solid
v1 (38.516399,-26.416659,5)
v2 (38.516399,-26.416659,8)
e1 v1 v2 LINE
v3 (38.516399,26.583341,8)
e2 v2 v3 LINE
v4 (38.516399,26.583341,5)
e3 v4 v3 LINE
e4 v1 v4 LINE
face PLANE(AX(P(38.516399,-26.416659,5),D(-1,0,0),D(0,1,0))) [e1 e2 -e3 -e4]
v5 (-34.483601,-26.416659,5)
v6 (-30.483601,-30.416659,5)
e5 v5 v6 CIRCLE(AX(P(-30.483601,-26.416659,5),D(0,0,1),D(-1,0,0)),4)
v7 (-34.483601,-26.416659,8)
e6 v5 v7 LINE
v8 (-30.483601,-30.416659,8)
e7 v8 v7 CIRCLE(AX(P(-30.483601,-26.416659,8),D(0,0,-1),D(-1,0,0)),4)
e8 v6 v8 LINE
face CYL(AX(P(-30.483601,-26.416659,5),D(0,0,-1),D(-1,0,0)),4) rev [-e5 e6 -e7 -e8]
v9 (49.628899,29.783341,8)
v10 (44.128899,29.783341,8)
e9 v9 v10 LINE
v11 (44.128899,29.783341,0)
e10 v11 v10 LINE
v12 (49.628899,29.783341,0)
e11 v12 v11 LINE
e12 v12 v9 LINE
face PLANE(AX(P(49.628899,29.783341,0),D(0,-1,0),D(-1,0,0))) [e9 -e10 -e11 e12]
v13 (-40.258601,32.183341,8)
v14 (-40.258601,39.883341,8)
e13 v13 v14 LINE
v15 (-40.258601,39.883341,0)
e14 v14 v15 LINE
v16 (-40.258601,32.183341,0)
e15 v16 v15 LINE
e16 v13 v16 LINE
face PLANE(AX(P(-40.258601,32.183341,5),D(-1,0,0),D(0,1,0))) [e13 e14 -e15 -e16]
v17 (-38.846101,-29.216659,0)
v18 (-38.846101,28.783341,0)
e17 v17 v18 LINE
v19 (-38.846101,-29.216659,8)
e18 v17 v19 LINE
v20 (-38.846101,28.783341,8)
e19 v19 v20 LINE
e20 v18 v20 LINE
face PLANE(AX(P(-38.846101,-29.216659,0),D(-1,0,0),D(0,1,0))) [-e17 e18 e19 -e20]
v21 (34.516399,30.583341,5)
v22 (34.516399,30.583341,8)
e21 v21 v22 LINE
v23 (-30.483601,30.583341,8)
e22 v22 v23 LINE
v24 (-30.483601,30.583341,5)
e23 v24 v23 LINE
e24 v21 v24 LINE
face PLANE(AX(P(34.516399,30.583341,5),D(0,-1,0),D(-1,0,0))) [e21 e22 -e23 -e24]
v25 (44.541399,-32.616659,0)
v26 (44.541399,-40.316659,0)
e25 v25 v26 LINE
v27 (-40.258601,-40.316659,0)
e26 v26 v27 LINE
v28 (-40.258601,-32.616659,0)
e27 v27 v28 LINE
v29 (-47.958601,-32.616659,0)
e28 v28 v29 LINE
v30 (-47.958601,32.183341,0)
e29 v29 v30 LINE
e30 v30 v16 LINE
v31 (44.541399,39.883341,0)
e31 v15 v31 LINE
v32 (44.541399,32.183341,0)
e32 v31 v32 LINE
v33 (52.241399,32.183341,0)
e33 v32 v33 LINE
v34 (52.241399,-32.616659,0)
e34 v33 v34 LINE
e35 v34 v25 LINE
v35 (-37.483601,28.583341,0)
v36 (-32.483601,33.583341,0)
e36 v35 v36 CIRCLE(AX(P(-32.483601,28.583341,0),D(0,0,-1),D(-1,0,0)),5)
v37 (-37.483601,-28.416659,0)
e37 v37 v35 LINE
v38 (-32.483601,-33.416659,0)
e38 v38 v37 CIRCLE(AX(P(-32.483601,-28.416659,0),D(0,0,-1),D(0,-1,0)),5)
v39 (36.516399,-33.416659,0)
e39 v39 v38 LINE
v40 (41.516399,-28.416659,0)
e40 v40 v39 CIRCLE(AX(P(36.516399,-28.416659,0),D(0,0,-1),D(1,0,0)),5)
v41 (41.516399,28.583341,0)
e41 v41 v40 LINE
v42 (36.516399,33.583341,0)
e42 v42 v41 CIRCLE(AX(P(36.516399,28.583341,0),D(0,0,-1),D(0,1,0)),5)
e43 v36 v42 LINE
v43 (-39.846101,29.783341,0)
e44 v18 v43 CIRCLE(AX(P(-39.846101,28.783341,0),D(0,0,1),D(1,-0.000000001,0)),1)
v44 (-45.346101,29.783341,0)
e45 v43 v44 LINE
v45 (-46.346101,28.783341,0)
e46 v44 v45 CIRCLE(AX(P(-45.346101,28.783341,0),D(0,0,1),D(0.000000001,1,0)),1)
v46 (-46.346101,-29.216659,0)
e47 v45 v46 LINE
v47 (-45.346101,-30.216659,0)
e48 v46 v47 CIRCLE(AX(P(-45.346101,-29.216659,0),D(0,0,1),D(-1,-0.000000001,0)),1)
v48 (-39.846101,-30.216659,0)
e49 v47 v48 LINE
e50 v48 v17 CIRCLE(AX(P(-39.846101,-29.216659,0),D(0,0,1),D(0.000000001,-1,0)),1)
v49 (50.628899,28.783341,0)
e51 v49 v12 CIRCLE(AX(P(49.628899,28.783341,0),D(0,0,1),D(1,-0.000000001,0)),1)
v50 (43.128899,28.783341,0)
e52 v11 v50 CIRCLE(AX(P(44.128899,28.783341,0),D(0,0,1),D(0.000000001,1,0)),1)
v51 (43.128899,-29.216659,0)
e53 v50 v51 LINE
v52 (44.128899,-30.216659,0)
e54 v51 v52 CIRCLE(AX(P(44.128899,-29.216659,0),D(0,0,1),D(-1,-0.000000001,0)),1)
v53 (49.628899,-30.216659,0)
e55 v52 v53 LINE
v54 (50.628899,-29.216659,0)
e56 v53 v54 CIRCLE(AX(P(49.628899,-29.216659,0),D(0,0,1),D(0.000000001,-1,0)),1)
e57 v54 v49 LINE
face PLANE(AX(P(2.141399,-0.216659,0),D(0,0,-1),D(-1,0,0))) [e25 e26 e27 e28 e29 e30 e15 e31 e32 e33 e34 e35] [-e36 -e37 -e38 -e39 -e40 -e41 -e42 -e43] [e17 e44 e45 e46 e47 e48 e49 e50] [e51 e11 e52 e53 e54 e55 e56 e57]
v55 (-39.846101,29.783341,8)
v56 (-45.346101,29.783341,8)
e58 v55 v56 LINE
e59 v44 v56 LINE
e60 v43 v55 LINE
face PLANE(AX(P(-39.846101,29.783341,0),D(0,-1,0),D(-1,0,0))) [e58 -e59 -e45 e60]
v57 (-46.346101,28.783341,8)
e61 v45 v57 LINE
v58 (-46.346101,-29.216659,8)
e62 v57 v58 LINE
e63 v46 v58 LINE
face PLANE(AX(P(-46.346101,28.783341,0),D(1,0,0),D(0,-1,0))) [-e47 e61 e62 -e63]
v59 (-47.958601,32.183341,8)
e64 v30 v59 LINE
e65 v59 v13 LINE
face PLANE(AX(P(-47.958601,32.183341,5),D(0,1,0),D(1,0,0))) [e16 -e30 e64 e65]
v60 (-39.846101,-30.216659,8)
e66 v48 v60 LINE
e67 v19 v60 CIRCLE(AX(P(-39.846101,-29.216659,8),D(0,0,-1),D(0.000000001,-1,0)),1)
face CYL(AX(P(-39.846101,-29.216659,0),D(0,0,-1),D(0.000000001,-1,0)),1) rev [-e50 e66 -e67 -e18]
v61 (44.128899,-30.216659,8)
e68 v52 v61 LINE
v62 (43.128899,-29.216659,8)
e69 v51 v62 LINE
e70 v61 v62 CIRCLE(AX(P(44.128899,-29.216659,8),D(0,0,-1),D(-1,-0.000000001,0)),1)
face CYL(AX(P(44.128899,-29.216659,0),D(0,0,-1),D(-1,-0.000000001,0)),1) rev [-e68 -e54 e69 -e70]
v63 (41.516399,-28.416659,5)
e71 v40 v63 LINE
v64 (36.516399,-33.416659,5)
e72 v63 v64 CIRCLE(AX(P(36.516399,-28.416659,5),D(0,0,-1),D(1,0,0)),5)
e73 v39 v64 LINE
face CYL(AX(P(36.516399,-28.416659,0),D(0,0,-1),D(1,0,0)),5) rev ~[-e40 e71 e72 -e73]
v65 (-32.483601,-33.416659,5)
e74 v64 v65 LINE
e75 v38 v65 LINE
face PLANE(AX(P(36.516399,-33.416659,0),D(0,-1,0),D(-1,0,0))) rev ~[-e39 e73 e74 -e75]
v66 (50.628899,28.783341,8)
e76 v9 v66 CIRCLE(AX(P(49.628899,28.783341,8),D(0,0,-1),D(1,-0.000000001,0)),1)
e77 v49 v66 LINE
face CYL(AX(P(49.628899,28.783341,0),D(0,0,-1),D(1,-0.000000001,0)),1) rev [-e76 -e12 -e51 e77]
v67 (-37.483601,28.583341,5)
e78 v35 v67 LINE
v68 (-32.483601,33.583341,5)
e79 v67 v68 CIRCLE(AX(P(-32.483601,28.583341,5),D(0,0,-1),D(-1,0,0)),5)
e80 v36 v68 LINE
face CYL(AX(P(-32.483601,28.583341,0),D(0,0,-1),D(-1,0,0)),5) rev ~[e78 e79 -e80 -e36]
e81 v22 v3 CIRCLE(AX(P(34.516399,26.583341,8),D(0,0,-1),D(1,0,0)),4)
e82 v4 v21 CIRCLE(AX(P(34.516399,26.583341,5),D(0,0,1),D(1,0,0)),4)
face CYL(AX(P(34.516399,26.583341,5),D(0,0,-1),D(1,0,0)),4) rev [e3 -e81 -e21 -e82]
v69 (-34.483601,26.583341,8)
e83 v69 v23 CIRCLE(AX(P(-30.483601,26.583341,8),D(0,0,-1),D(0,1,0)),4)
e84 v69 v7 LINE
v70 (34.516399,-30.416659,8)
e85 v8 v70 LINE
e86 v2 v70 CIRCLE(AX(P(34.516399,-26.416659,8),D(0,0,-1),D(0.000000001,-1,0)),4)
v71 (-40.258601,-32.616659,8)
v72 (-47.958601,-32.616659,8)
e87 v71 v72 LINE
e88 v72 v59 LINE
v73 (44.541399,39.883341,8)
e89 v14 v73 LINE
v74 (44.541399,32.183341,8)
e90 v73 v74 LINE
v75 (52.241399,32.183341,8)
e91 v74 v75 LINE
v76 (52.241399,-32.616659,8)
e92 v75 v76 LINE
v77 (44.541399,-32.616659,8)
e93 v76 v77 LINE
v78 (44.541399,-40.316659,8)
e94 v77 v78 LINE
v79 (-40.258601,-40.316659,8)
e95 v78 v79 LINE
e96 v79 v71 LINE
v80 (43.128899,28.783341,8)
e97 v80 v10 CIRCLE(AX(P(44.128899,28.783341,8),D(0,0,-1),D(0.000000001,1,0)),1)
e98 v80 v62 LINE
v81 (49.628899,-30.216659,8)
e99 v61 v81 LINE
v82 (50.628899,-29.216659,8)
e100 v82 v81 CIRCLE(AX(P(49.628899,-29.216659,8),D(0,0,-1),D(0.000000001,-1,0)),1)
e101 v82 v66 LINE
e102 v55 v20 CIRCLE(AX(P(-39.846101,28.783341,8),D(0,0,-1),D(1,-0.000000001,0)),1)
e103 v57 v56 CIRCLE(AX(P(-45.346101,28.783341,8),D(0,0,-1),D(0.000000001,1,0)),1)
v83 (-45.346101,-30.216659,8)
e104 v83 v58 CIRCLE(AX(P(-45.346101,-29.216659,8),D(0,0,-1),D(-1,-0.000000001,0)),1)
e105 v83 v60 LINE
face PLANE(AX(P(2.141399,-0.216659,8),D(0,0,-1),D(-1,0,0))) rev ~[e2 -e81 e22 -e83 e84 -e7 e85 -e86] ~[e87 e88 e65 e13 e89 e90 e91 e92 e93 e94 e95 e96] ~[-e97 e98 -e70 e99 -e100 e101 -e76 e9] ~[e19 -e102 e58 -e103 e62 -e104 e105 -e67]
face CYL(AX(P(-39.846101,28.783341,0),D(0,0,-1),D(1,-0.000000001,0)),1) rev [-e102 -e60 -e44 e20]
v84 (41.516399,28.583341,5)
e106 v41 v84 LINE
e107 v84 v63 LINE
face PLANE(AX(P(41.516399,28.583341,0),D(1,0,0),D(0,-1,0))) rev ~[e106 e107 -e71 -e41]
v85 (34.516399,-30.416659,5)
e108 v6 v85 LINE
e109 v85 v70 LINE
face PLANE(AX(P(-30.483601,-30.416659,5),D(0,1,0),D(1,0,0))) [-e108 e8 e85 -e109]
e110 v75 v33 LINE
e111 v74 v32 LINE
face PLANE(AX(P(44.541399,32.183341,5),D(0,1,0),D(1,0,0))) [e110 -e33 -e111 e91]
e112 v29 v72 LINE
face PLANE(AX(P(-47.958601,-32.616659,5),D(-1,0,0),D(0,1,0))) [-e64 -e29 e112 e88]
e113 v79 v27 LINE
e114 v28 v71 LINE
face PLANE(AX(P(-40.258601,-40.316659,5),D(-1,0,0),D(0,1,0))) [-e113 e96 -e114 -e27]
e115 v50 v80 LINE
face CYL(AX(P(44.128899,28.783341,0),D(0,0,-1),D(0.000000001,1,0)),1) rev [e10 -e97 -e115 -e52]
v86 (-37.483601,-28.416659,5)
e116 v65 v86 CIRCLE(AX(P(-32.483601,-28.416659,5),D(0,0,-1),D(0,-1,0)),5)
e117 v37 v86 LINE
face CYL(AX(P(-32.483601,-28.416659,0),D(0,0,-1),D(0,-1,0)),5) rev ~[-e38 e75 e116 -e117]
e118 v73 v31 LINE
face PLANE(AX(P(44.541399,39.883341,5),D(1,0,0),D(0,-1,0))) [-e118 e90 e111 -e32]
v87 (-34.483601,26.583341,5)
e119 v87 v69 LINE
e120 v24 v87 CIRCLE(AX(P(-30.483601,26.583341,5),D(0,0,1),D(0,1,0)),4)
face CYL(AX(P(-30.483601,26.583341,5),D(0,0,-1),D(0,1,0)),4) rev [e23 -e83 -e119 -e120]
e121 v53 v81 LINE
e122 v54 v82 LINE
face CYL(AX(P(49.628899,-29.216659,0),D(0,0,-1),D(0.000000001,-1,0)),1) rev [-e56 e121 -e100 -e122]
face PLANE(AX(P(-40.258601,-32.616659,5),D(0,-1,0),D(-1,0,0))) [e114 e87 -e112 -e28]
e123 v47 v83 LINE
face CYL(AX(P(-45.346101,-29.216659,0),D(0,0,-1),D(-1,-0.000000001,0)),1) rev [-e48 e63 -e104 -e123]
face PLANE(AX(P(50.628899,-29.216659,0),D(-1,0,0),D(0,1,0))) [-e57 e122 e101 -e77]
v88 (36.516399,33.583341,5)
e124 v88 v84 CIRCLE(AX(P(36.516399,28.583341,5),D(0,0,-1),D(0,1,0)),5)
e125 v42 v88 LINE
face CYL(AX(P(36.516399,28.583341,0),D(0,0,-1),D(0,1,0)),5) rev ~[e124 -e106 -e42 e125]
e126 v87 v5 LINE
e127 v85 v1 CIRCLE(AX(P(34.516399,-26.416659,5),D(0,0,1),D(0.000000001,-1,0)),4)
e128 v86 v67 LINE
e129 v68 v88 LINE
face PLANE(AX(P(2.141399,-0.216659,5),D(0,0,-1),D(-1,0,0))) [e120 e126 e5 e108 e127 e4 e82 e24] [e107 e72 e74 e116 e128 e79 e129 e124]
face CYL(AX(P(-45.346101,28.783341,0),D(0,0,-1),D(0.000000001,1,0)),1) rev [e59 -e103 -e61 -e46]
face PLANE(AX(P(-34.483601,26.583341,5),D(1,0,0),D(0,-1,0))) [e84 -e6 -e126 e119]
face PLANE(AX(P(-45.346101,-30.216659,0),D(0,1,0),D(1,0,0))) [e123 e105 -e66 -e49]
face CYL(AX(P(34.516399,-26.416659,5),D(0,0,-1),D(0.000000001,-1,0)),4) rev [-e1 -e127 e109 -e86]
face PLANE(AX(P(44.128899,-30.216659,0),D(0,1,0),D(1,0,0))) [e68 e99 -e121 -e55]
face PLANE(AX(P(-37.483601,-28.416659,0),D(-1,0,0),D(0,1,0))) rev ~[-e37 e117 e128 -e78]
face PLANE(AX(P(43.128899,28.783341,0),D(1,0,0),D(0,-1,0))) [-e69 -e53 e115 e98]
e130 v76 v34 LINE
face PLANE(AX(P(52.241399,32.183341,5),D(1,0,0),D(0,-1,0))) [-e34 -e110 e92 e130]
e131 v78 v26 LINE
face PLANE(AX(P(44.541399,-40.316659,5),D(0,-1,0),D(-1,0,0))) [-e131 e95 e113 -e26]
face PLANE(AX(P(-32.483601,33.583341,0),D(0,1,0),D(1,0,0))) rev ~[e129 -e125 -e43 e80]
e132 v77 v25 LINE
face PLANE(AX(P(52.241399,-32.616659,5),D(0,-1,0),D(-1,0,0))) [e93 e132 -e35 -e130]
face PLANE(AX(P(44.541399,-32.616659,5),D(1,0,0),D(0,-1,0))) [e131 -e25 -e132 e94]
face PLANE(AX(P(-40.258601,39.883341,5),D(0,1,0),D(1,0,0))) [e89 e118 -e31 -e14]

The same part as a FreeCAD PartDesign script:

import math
import FreeCAD as App
import Part
import Sketcher
from FreeCAD import Vector
Q = App.Units.Quantity


def add_polygon(sketch, points):
    """Adds a closed chain of lines whose ends are joined by coincident constraints."""
    first, n = sketch.GeometryCount, len(points)
    for a, b in zip(points, points[1:] + points[:1]):
        sketch.addGeometry(Part.LineSegment(App.Vector(*a, 0), App.Vector(*b, 0)), False)
    for i in range(n):
        sketch.addConstraint(Sketcher.Constraint("Coincident", first + i, 2, first + (i + 1) % n, 1))

doc = App.newDocument("Part")
body = doc.addObject("PartDesign::Body", "Body")

# Sketch on XY plane
sketch1 = body.newObject("Sketcher::SketchObject", "Sketch")
sketch1.AttachmentSupport = (doc.getObject("XY_Plane"), [""])
sketch1.MapMode = "FlatFace"
add_polygon(sketch1, [(45, 40), (-40, 40), (-40, 32), (-48, 32), (-48, -33), (-40, -33), (-40, -40), (45, -40), (45, -33), (52, -33), (52, 32), (45, 32)])  # lines 0-11
sketch1.addGeometry(Part.LineSegment(Vector(-32, 34, 0), Vector(37, 34, 0)), False)  # 12
sketch1.addGeometry(Part.ArcOfCircle(Part.Circle(Vector(37, 29, 0), Vector(0, 0, 1), 5), math.radians(0), math.radians(90)), False)  # 13
sketch1.addGeometry(Part.LineSegment(Vector(42, 29, 0), Vector(42, -28, 0)), False)  # 14
sketch1.addGeometry(Part.ArcOfCircle(Part.Circle(Vector(37, -28, 0), Vector(0, 0, 1), 5), math.radians(-90), math.radians(0)), False)  # 15
sketch1.addGeometry(Part.LineSegment(Vector(37, -33, 0), Vector(-32, -33, 0)), False)  # 16
sketch1.addGeometry(Part.ArcOfCircle(Part.Circle(Vector(-32, -28, 0), Vector(0, 0, 1), 5), math.radians(-180), math.radians(-90)), False)  # 17
sketch1.addGeometry(Part.LineSegment(Vector(-37, -28, 0), Vector(-37, 29, 0)), False)  # 18
sketch1.addGeometry(Part.ArcOfCircle(Part.Circle(Vector(-32, 29, 0), Vector(0, 0, 1), 5), math.radians(90), math.radians(180)), False)  # 19
sketch1.addConstraint([
    Sketcher.Constraint("Tangent", 12, 2, 13, 2),
    Sketcher.Constraint("Tangent", 13, 1, 14, 1),
    Sketcher.Constraint("Tangent", 14, 2, 15, 2),
    Sketcher.Constraint("Tangent", 15, 1, 16, 1),
    Sketcher.Constraint("Tangent", 16, 2, 17, 2),
    Sketcher.Constraint("Tangent", 17, 1, 18, 1),
    Sketcher.Constraint("Tangent", 18, 2, 19, 2),
    Sketcher.Constraint("Tangent", 19, 1, 12, 1),
    Sketcher.Constraint("Horizontal", 0),
    Sketcher.Constraint("Vertical", 1),
    Sketcher.Constraint("Horizontal", 2),
    Sketcher.Constraint("Vertical", 3),
    Sketcher.Constraint("Horizontal", 4),
    Sketcher.Constraint("Vertical", 5),
    Sketcher.Constraint("Horizontal", 6),
    Sketcher.Constraint("Vertical", 7),
    Sketcher.Constraint("Horizontal", 8),
    Sketcher.Constraint("Vertical", 9),
    Sketcher.Constraint("Horizontal", 10),
    Sketcher.Constraint("Vertical", 11),
    Sketcher.Constraint("Horizontal", 12),
    Sketcher.Constraint("Vertical", 14),
    Sketcher.Constraint("Horizontal", 16),
    Sketcher.Constraint("Vertical", 18),
    Sketcher.Constraint("Equal", 13, 15),
    Sketcher.Constraint("Equal", 15, 17),
    Sketcher.Constraint("Equal", 17, 19),
    Sketcher.Constraint("Horizontal", 4, 2, 7, 2),
    Sketcher.Constraint("Horizontal", 2, 2, 9, 2),
    Sketcher.Constraint("Vertical", 1, 2, 4, 2),
    Sketcher.Constraint("Vertical", 7, 2, 10, 2),
    Sketcher.Constraint("Equal", 4, 8),
    Sketcher.Constraint("Equal", 10, 1),
    Sketcher.Constraint("Equal", 1, 5),
    Sketcher.Constraint("Radius", 13, Q("5 mm")),
    Sketcher.Constraint("DistanceX", 12, 1, 12, 2, Q("69 mm")),
    Sketcher.Constraint("DistanceY", 14, 2, 14, 1, Q("57 mm")),
    Sketcher.Constraint("DistanceX", 0, 2, 0, 1, Q("84.8 mm")),
    Sketcher.Constraint("DistanceX", 2, 2, 2, 1, Q("7.7 mm")),
    Sketcher.Constraint("DistanceY", 3, 2, 3, 1, Q("64.8 mm")),
    Sketcher.Constraint("DistanceY", 19, 3, 0, 2, Q("11.3 mm")),
    Sketcher.Constraint("DistanceX", 0, 2, 19, 3, Q("7.775 mm")),
    Sketcher.Constraint("DistanceX", -1, 1, 13, 3, Q("36.516399 mm")),
    Sketcher.Constraint("DistanceY", -1, 1, 13, 3, Q("28.583341 mm")),
])
pad1 = body.newObject("PartDesign::Pad", "Pad")
pad1.Profile = sketch1
pad1.Length = 5

# Sketch on XY plane
sketch2 = body.newObject("Sketcher::SketchObject", "Sketch001")
sketch2.AttachmentSupport = (doc.getObject("XY_Plane"), [""])
sketch2.MapMode = "FlatFace"
sketch2.AttachmentOffset = App.Placement(Vector(0, 0, 5), App.Rotation())
add_polygon(sketch2, [(-40, 32), (-48, 32), (-48, -33), (-40, -33), (-40, -40), (45, -40), (45, -33), (52, -33), (52, 32), (45, 32), (45, 40), (-40, 40)])  # lines 0-11
sketch2.addConstraint([
    Sketcher.Constraint("Horizontal", 0),
    Sketcher.Constraint("Vertical", 1),
    Sketcher.Constraint("Horizontal", 2),
    Sketcher.Constraint("Vertical", 3),
    Sketcher.Constraint("Horizontal", 4),
    Sketcher.Constraint("Vertical", 5),
    Sketcher.Constraint("Horizontal", 6),
    Sketcher.Constraint("Vertical", 7),
    Sketcher.Constraint("Horizontal", 8),
    Sketcher.Constraint("Vertical", 9),
    Sketcher.Constraint("Horizontal", 10),
    Sketcher.Constraint("Vertical", 11),
    Sketcher.Constraint("Horizontal", 2, 2, 5, 2),
    Sketcher.Constraint("Horizontal", 0, 2, 7, 2),
    Sketcher.Constraint("Vertical", 5, 2, 8, 2),
    Sketcher.Constraint("Vertical", 3, 2, 10, 2),
    Sketcher.Constraint("Equal", 2, 6),
    Sketcher.Constraint("Equal", 8, 3),
    Sketcher.Constraint("Equal", 5, 9),
    Sketcher.Constraint("DistanceX", 0, 2, 0, 1, Q("7.7 mm")),
    Sketcher.Constraint("DistanceX", 4, 1, 4, 2, Q("84.8 mm")),
    Sketcher.Constraint("DistanceY", 1, 2, 1, 1, Q("64.8 mm")),
    Sketcher.Constraint("DistanceX", 0, 2, -1, 1, Q("47.958601 mm")),
    Sketcher.Constraint("DistanceY", -1, 1, 0, 2, Q("32.183341 mm")),
])
pad2 = body.newObject("PartDesign::Pad", "Pad001")
pad2.Profile = sketch2
pad2.Length = 3

# Sketch on XY plane
sketch3 = body.newObject("Sketcher::SketchObject", "Sketch002")
sketch3.AttachmentSupport = (doc.getObject("XY_Plane"), [""])
sketch3.MapMode = "FlatFace"
sketch3.AttachmentOffset = App.Placement(Vector(0, 0, 5), App.Rotation())
sketch3.addGeometry([
    Part.LineSegment(Vector(-30.5, 30.6, 0), Vector(34.5, 30.6, 0)),  # 0
    Part.ArcOfCircle(Part.Circle(Vector(34.5, 26.6, 0), Vector(0, 0, 1), 4), math.radians(0), math.radians(90)),  # 1
    Part.LineSegment(Vector(38.5, 26.6, 0), Vector(38.5, -26.4, 0)),  # 2
    Part.ArcOfCircle(Part.Circle(Vector(34.5, -26.4, 0), Vector(0, 0, 1), 4), math.radians(-90), math.radians(0)),  # 3
    Part.LineSegment(Vector(34.5, -30.4, 0), Vector(-30.5, -30.4, 0)),  # 4
    Part.ArcOfCircle(Part.Circle(Vector(-30.5, -26.4, 0), Vector(0, 0, 1), 4), math.radians(-180), math.radians(-90)),  # 5
    Part.LineSegment(Vector(-34.5, -26.4, 0), Vector(-34.5, 26.6, 0)),  # 6
    Part.ArcOfCircle(Part.Circle(Vector(-30.5, 26.6, 0), Vector(0, 0, 1), 4), math.radians(90), math.radians(180)),  # 7
], False)
sketch3.addConstraint([
    Sketcher.Constraint("Tangent", 0, 2, 1, 2),
    Sketcher.Constraint("Tangent", 1, 1, 2, 1),
    Sketcher.Constraint("Tangent", 2, 2, 3, 2),
    Sketcher.Constraint("Tangent", 3, 1, 4, 1),
    Sketcher.Constraint("Tangent", 4, 2, 5, 2),
    Sketcher.Constraint("Tangent", 5, 1, 6, 1),
    Sketcher.Constraint("Tangent", 6, 2, 7, 2),
    Sketcher.Constraint("Tangent", 7, 1, 0, 1),
    Sketcher.Constraint("Horizontal", 0),
    Sketcher.Constraint("Vertical", 2),
    Sketcher.Constraint("Horizontal", 4),
    Sketcher.Constraint("Vertical", 6),
    Sketcher.Constraint("Equal", 1, 3),
    Sketcher.Constraint("Equal", 3, 5),
    Sketcher.Constraint("Equal", 5, 7),
    Sketcher.Constraint("Radius", 1, Q("4 mm")),
    Sketcher.Constraint("DistanceX", 0, 1, 0, 2, Q("65 mm")),
    Sketcher.Constraint("DistanceY", 2, 2, 2, 1, Q("53 mm")),
    Sketcher.Constraint("DistanceX", -1, 1, 1, 3, Q("34.516399 mm")),
    Sketcher.Constraint("DistanceY", -1, 1, 1, 3, Q("26.583341 mm")),
])
pocket1 = body.newObject("PartDesign::Pocket", "Pocket")
pocket1.Profile = sketch3
pocket1.Length = 10
pocket1.Reversed = True

# Sketch on XY plane
sketch4 = body.newObject("Sketcher::SketchObject", "Sketch003")
sketch4.AttachmentSupport = (doc.getObject("XY_Plane"), [""])
sketch4.MapMode = "FlatFace"
sketch4.addGeometry([
    Part.LineSegment(Vector(44.1, 29.8, 0), Vector(49.6, 29.8, 0)),  # 0
    Part.ArcOfCircle(Part.Circle(Vector(49.6, 28.8, 0), Vector(0, 0, 1), 1), math.radians(0), math.radians(90)),  # 1
    Part.LineSegment(Vector(50.6, 28.8, 0), Vector(50.6, -29.2, 0)),  # 2
    Part.ArcOfCircle(Part.Circle(Vector(49.6, -29.2, 0), Vector(0, 0, 1), 1), math.radians(-90), math.radians(0)),  # 3
    Part.LineSegment(Vector(49.6, -30.2, 0), Vector(44.1, -30.2, 0)),  # 4
    Part.ArcOfCircle(Part.Circle(Vector(44.1, -29.2, 0), Vector(0, 0, 1), 1), math.radians(-180), math.radians(-90)),  # 5
    Part.LineSegment(Vector(43.1, -29.2, 0), Vector(43.1, 28.8, 0)),  # 6
    Part.ArcOfCircle(Part.Circle(Vector(44.1, 28.8, 0), Vector(0, 0, 1), 1), math.radians(90), math.radians(180)),  # 7
    Part.LineSegment(Vector(-39.8, -30.2, 0), Vector(-45.3, -30.2, 0)),  # 8
    Part.ArcOfCircle(Part.Circle(Vector(-45.3, -29.2, 0), Vector(0, 0, 1), 1), math.radians(-180), math.radians(-90)),  # 9
    Part.LineSegment(Vector(-46.3, -29.2, 0), Vector(-46.3, 28.8, 0)),  # 10
    Part.ArcOfCircle(Part.Circle(Vector(-45.3, 28.8, 0), Vector(0, 0, 1), 1), math.radians(90), math.radians(180)),  # 11
    Part.LineSegment(Vector(-45.3, 29.8, 0), Vector(-39.8, 29.8, 0)),  # 12
    Part.ArcOfCircle(Part.Circle(Vector(-39.8, 28.8, 0), Vector(0, 0, 1), 1), math.radians(0), math.radians(90)),  # 13
    Part.LineSegment(Vector(-38.8, 28.8, 0), Vector(-38.8, -29.2, 0)),  # 14
    Part.ArcOfCircle(Part.Circle(Vector(-39.8, -29.2, 0), Vector(0, 0, 1), 1), math.radians(-90), math.radians(0)),  # 15
], False)
sketch4.addConstraint([
    Sketcher.Constraint("Tangent", 0, 2, 1, 2),
    Sketcher.Constraint("Tangent", 1, 1, 2, 1),
    Sketcher.Constraint("Tangent", 2, 2, 3, 2),
    Sketcher.Constraint("Tangent", 3, 1, 4, 1),
    Sketcher.Constraint("Tangent", 4, 2, 5, 2),
    Sketcher.Constraint("Tangent", 5, 1, 6, 1),
    Sketcher.Constraint("Tangent", 6, 2, 7, 2),
    Sketcher.Constraint("Tangent", 7, 1, 0, 1),
    Sketcher.Constraint("Tangent", 8, 2, 9, 2),
    Sketcher.Constraint("Tangent", 9, 1, 10, 1),
    Sketcher.Constraint("Tangent", 10, 2, 11, 2),
    Sketcher.Constraint("Tangent", 11, 1, 12, 1),
    Sketcher.Constraint("Tangent", 12, 2, 13, 2),
    Sketcher.Constraint("Tangent", 13, 1, 14, 1),
    Sketcher.Constraint("Tangent", 14, 2, 15, 2),
    Sketcher.Constraint("Tangent", 15, 1, 8, 1),
    Sketcher.Constraint("Horizontal", 0),
    Sketcher.Constraint("Vertical", 2),
    Sketcher.Constraint("Horizontal", 4),
    Sketcher.Constraint("Vertical", 6),
    Sketcher.Constraint("Horizontal", 8),
    Sketcher.Constraint("Vertical", 10),
    Sketcher.Constraint("Horizontal", 12),
    Sketcher.Constraint("Vertical", 14),
    Sketcher.Constraint("Equal", 1, 3),
    Sketcher.Constraint("Equal", 3, 5),
    Sketcher.Constraint("Equal", 5, 7),
    Sketcher.Constraint("Equal", 7, 9),
    Sketcher.Constraint("Equal", 9, 11),
    Sketcher.Constraint("Equal", 11, 13),
    Sketcher.Constraint("Equal", 13, 15),
    Sketcher.Constraint("Horizontal", 5, 3, 9, 3),
    Sketcher.Constraint("Horizontal", 7, 3, 11, 3),
    Sketcher.Constraint("Equal", 4, 8),
    Sketcher.Constraint("Radius", 1, Q("1 mm")),
    Sketcher.Constraint("DistanceY", 2, 2, 2, 1, Q("58 mm")),
    Sketcher.Constraint("DistanceX", 0, 1, 0, 2, Q("5.5 mm")),
    Sketcher.Constraint("DistanceX", 9, 3, 5, 3, Q("89.475 mm")),
    Sketcher.Constraint("DistanceX", -1, 1, 1, 3, Q("49.628899 mm")),
    Sketcher.Constraint("DistanceY", -1, 1, 1, 3, Q("28.783341 mm")),
])
pocket2 = body.newObject("PartDesign::Pocket", "Pocket001")
pocket2.Profile = sketch4
pocket2.Type = "ThroughAll"
pocket2.Reversed = True

doc.recompute()
